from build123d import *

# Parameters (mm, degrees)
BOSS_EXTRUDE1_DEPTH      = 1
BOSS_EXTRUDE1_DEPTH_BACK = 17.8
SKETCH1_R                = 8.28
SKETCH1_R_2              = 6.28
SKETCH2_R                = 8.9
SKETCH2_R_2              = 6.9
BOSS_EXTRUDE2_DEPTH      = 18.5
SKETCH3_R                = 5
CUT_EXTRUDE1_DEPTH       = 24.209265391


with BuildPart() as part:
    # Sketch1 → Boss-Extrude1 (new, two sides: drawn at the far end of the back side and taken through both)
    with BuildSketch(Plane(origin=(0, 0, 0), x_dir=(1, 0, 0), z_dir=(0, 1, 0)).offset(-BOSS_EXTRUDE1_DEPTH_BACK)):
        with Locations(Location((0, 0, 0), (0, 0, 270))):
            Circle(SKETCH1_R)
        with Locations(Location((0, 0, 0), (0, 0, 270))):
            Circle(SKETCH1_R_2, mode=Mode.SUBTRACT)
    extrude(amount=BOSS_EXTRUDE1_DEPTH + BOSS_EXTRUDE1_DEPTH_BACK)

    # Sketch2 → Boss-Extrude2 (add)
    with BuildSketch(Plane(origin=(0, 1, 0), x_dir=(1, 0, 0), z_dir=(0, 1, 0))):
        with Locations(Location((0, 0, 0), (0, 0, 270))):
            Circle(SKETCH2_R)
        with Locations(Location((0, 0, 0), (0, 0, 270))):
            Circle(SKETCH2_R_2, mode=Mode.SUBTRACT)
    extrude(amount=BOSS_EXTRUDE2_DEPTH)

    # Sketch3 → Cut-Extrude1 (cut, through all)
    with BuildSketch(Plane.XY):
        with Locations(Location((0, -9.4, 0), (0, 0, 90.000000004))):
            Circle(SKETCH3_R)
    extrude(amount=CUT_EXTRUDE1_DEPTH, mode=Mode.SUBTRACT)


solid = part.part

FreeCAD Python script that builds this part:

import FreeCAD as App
import Part
import Sketcher

doc = App.newDocument("Part")
body = doc.addObject("PartDesign::Body", "Body")

# Sketch on XZ plane
sketch1 = body.newObject("Sketcher::SketchObject", "Sketch")
sketch1.AttachmentSupport = (doc.getObject("XZ_Plane"), [""])
sketch1.MapMode = "FlatFace"
sketch1.addGeometry([
    Part.Circle(App.Vector(0, 0, 0), App.Vector(0, 0, 1), 8.28),
    Part.Circle(App.Vector(0, 0, 0), App.Vector(0, 0, 1), 6.28),
], False)
sketch1.addConstraint([
    Sketcher.Constraint("Coincident", 0, 3, -1, 1),
    Sketcher.Constraint("Coincident", 1, 3, -1, 1),
    Sketcher.Constraint("Diameter", 0, 16.56),
    Sketcher.Constraint("Diameter", 1, 12.56),
])
pad1 = body.newObject("PartDesign::Pad", "Pad")
pad1.Profile = sketch1
pad1.Type = "TwoLengths"
pad1.Length = 1
pad1.Length2 = 17.8
pad1.Reversed = True

# Sketch on XZ plane
sketch2 = body.newObject("Sketcher::SketchObject", "Sketch001")
sketch2.AttachmentSupport = (doc.getObject("XZ_Plane"), [""])
sketch2.MapMode = "FlatFace"
sketch2.AttachmentOffset = App.Placement(App.Vector(0, 0, -1), App.Rotation())
sketch2.addGeometry([
    Part.Circle(App.Vector(0, 0, 0), App.Vector(0, 0, 1), 8.9),
    Part.Circle(App.Vector(0, 0, 0), App.Vector(0, 0, 1), 6.9),
], False)
sketch2.addConstraint([
    Sketcher.Constraint("Coincident", 0, 3, -1, 1),
    Sketcher.Constraint("Coincident", 1, 3, -1, 1),
    Sketcher.Constraint("Diameter", 0, 17.8),
    Sketcher.Constraint("Diameter", 1, 13.8),
])
pad2 = body.newObject("PartDesign::Pad", "Pad001")
pad2.Profile = sketch2
pad2.Length = 18.5
pad2.Reversed = True

# Sketch on XY plane
sketch3 = body.newObject("Sketcher::SketchObject", "Sketch002")
sketch3.AttachmentSupport = (doc.getObject("XY_Plane"), [""])
sketch3.MapMode = "FlatFace"
sketch3.addGeometry(Part.Circle(App.Vector(0, -9.4, 0), App.Vector(0, 0, 1), 5), False)
sketch3.addConstraint([
    Sketcher.Constraint("PointOnObject", 0, 3, -2),
    Sketcher.Constraint("Diameter", 0, 10.0),
    Sketcher.Constraint("DistanceY", 0, 3, -1, 1, 9.4),
])
pocket1 = body.newObject("PartDesign::Pocket", "Pocket")
pocket1.Profile = sketch3
pocket1.Type = "ThroughAll"
pocket1.Reversed = True

doc.recompute()
